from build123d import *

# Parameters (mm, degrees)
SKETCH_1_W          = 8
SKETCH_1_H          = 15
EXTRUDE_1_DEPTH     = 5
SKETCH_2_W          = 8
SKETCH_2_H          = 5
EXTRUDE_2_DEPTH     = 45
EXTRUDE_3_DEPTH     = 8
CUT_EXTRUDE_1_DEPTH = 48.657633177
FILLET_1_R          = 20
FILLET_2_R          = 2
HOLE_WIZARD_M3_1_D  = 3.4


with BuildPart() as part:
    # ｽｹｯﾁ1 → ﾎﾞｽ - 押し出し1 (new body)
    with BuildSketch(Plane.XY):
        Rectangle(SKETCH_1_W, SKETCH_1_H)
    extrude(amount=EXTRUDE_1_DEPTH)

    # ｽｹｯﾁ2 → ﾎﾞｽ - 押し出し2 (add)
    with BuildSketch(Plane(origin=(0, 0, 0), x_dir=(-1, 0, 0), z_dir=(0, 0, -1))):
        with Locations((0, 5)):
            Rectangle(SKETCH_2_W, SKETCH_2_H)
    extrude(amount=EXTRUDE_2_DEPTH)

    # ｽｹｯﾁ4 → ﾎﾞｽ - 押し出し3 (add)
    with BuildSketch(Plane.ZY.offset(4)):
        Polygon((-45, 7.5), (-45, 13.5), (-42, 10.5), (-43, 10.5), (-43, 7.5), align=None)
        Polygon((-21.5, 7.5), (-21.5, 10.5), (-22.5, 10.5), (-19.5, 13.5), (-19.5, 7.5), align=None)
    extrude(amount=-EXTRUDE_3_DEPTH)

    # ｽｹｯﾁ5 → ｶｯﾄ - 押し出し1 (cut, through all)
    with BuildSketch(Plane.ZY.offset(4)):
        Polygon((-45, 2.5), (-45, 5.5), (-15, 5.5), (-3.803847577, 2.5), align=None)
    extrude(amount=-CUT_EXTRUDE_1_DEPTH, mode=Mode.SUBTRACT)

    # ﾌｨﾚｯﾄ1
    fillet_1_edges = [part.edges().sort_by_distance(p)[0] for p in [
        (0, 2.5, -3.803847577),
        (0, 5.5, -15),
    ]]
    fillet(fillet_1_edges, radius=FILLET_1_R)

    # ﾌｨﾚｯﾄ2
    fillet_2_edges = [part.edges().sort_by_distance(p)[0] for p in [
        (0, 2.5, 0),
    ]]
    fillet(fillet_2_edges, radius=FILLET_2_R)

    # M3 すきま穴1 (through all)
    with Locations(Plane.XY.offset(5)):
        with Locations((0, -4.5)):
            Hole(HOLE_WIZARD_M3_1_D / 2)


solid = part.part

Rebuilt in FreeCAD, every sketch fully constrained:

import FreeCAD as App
import Part
import Sketcher
Q = App.Units.Quantity


def edges_at(feature, points):
    """Names of the edges that pass closest to the given points."""
    edges = feature.Shape.Edges
    near = lambda p: min(range(len(edges)), key=lambda i: edges[i].distToShape(Part.Vertex(*p))[0])
    return sorted({f"Edge{near(p) + 1}" for p in points})

doc = App.newDocument("Part")
body = doc.addObject("PartDesign::Body", "Body")

sketch1 = body.newObject("Sketcher::SketchObject", "Sketch")
sketch1.AttachmentSupport = (doc.getObject("XY_Plane"), [""])
sketch1.MapMode = "FlatFace"
sketch1.addGeometry([
    Part.LineSegment(App.Vector(-4, 8, 0), App.Vector(-4, -8, 0)),
    Part.LineSegment(App.Vector(-4, -8, 0), App.Vector(4, -8, 0)),
    Part.LineSegment(App.Vector(4, -8, 0), App.Vector(4, 8, 0)),
    Part.LineSegment(App.Vector(4, 8, 0), App.Vector(-4, 8, 0)),
], False)
sketch1.addConstraint([
    Sketcher.Constraint("Coincident", 0, 2, 1, 1),
    Sketcher.Constraint("Coincident", 1, 2, 2, 1),
    Sketcher.Constraint("Coincident", 2, 2, 3, 1),
    Sketcher.Constraint("Coincident", 3, 2, 0, 1),
    Sketcher.Constraint("Vertical", 0),
    Sketcher.Constraint("Horizontal", 1),
    Sketcher.Constraint("Vertical", 2),
    Sketcher.Constraint("Horizontal", 3),
    Sketcher.Constraint("Symmetric", 0, 2, 2, 2, -1, 1),
    Sketcher.Constraint("DistanceX", 1, 1, 1, 2, Q("8 mm")),
    Sketcher.Constraint("DistanceY", 0, 2, 0, 1, Q("15 mm")),
])
pad1 = body.newObject("PartDesign::Pad", "Pad")
pad1.Profile = sketch1
pad1.Length = 5

sketch2 = body.newObject("Sketcher::SketchObject", "Sketch001")
sketch2.AttachmentSupport = (doc.getObject("XY_Plane"), [""])
sketch2.MapMode = "FlatFace"
sketch2.addGeometry([
    Part.LineSegment(App.Vector(4, 8, 0), App.Vector(4, 2, 0)),
    Part.LineSegment(App.Vector(4, 2, 0), App.Vector(-4, 2, 0)),
    Part.LineSegment(App.Vector(-4, 2, 0), App.Vector(-4, 8, 0)),
    Part.LineSegment(App.Vector(-4, 8, 0), App.Vector(4, 8, 0)),
], False)
sketch2.addConstraint([
    Sketcher.Constraint("Coincident", 0, 2, 1, 1),
    Sketcher.Constraint("Coincident", 1, 2, 2, 1),
    Sketcher.Constraint("Coincident", 2, 2, 3, 1),
    Sketcher.Constraint("Coincident", 3, 2, 0, 1),
    Sketcher.Constraint("Vertical", 0),
    Sketcher.Constraint("Horizontal", 1),
    Sketcher.Constraint("Vertical", 2),
    Sketcher.Constraint("Horizontal", 3),
    Sketcher.Constraint("DistanceX", 1, 2, 1, 1, Q("8 mm")),
    Sketcher.Constraint("DistanceY", 0, 2, 0, 1, Q("5 mm")),
    Sketcher.Constraint("DistanceX", -1, 1, 0, 2, Q("4 mm")),
    Sketcher.Constraint("DistanceY", -1, 1, 0, 2, Q("2.5 mm")),
])
pad2 = body.newObject("PartDesign::Pad", "Pad001")
pad2.Profile = sketch2
pad2.Length = 45
pad2.Reversed = True

sketch3 = body.newObject("Sketcher::SketchObject", "Sketch002")
sketch3.AttachmentSupport = (doc.getObject("YZ_Plane"), [""])
sketch3.MapMode = "FlatFace"
sketch3.AttachmentOffset = App.Placement(App.Vector(0, 0, -4), App.Rotation())
sketch3.addGeometry([
    Part.LineSegment(App.Vector(13.5, -45, 0), App.Vector(7.5, -45, 0)),
    Part.LineSegment(App.Vector(7.5, -45, 0), App.Vector(7.5, -43, 0)),
    Part.LineSegment(App.Vector(7.5, -43, 0), App.Vector(10.5, -43, 0)),
    Part.LineSegment(App.Vector(10.5, -43, 0), App.Vector(10.5, -42, 0)),
    Part.LineSegment(App.Vector(10.5, -42, 0), App.Vector(13.5, -45, 0)),
    Part.LineSegment(App.Vector(10.5, -21.5, 0), App.Vector(7.5, -21.5, 0)),
    Part.LineSegment(App.Vector(7.5, -21.5, 0), App.Vector(7.5, -19.5, 0)),
    Part.LineSegment(App.Vector(7.5, -19.5, 0), App.Vector(13.5, -19.5, 0)),
    Part.LineSegment(App.Vector(13.5, -19.5, 0), App.Vector(10.5, -22.5, 0)),
    Part.LineSegment(App.Vector(10.5, -22.5, 0), App.Vector(10.5, -21.5, 0)),
], False)
sketch3.addConstraint([
    Sketcher.Constraint("Coincident", 0, 2, 1, 1),
    Sketcher.Constraint("Coincident", 1, 2, 2, 1),
    Sketcher.Constraint("Coincident", 2, 2, 3, 1),
    Sketcher.Constraint("Coincident", 3, 2, 4, 1),
    Sketcher.Constraint("Coincident", 4, 2, 0, 1),
    Sketcher.Constraint("Coincident", 5, 2, 6, 1),
    Sketcher.Constraint("Coincident", 6, 2, 7, 1),
    Sketcher.Constraint("Coincident", 7, 2, 8, 1),
    Sketcher.Constraint("Coincident", 8, 2, 9, 1),
    Sketcher.Constraint("Coincident", 9, 2, 5, 1),
    Sketcher.Constraint("Horizontal", 0),
    Sketcher.Constraint("Vertical", 1),
    Sketcher.Constraint("Horizontal", 2),
    Sketcher.Constraint("Vertical", 3),
    Sketcher.Constraint("Horizontal", 5),
    Sketcher.Constraint("Vertical", 6),
    Sketcher.Constraint("Horizontal", 7),
    Sketcher.Constraint("Vertical", 9),
    Sketcher.Constraint("Perpendicular", 4, 8),
    Sketcher.Constraint("Vertical", 1, 2, 5, 2),
    Sketcher.Constraint("Vertical", 4, 2, 7, 2),
    Sketcher.Constraint("Vertical", 3, 2, 8, 2),
    Sketcher.Constraint("Equal", 1, 6),
    Sketcher.Constraint("Equal", 3, 9),
    Sketcher.Constraint("DistanceX", 0, 2, 0, 1, Q("6 mm")),
    Sketcher.Constraint("DistanceX", 2, 1, 2, 2, Q("3 mm")),
    Sketcher.Constraint("DistanceY", 1, 1, 1, 2, Q("2 mm")),
    Sketcher.Constraint("DistanceY", 0, 2, -1, 1, Q("45 mm")),
    Sketcher.Constraint("DistanceX", -1, 1, 0, 2, Q("7.5 mm")),
    Sketcher.Constraint("DistanceY", 5, 2, -1, 1, Q("21.5 mm")),
])
pad3 = body.newObject("PartDesign::Pad", "Pad002")
pad3.Profile = sketch3
pad3.Length = 8

sketch4 = body.newObject("Sketcher::SketchObject", "Sketch003")
sketch4.AttachmentSupport = (doc.getObject("YZ_Plane"), [""])
sketch4.MapMode = "FlatFace"
sketch4.AttachmentOffset = App.Placement(App.Vector(0, 0, -4), App.Rotation())
sketch4.addGeometry([
    Part.LineSegment(App.Vector(5.5, -45, 0), App.Vector(2.5, -45, 0)),
    Part.LineSegment(App.Vector(2.5, -45, 0), App.Vector(2.5, -3.8, 0)),
    Part.LineSegment(App.Vector(2.5, -3.8, 0), App.Vector(5.5, -15, 0)),
    Part.LineSegment(App.Vector(5.5, -15, 0), App.Vector(5.5, -45, 0)),
], False)
sketch4.addConstraint([
    Sketcher.Constraint("Coincident", 0, 2, 1, 1),
    Sketcher.Constraint("Coincident", 1, 2, 2, 1),
    Sketcher.Constraint("Coincident", 2, 2, 3, 1),
    Sketcher.Constraint("Coincident", 3, 2, 0, 1),
    Sketcher.Constraint("Horizontal", 0),
    Sketcher.Constraint("Vertical", 1),
    Sketcher.Constraint("Vertical", 3),
    Sketcher.Constraint("DistanceX", 0, 2, 0, 1, Q("3 mm")),
    Sketcher.Constraint("DistanceY", 3, 2, 3, 1, Q("30 mm")),
    Sketcher.Constraint("Angle", 2, Q("-75 deg")),
    Sketcher.Constraint("DistanceY", 0, 2, -1, 1, Q("45 mm")),
    Sketcher.Constraint("DistanceX", -1, 1, 0, 2, Q("2.5 mm")),
])
pocket1 = body.newObject("PartDesign::Pocket", "Pocket")
pocket1.Profile = sketch4
pocket1.Type = "ThroughAll"
pocket1.Reversed = True
doc.recompute()

fillet = body.newObject("PartDesign::Fillet", "Fillet")
fillet.Base = (pocket1, edges_at(pocket1, [(0, 2.5, -3.804), (0, 5.5, -15)]))
fillet.Radius = 20
doc.recompute()

fillet2 = body.newObject("PartDesign::Fillet", "Fillet001")
fillet2.Base = (fillet, edges_at(fillet, [(0, 2.5, 0)]))
fillet2.Radius = 2

sketch5 = body.newObject("Sketcher::SketchObject", "Sketch004")
sketch5.AttachmentSupport = (doc.getObject("XY_Plane"), [""])
sketch5.MapMode = "FlatFace"
sketch5.AttachmentOffset = App.Placement(App.Vector(0, 0, 5), App.Rotation())
sketch5.addGeometry(Part.Circle(App.Vector(0, -4.5, 0), App.Vector(0, 0, 1), 1.7), False)
sketch5.addConstraint([
    Sketcher.Constraint("PointOnObject", 0, 3, -2),
    Sketcher.Constraint("Diameter", 0, Q("3.4 mm")),
    Sketcher.Constraint("DistanceY", 0, 3, -1, 1, Q("4.5 mm")),
])
doc.recompute()
hole = body.newObject("PartDesign::Hole", "Hole")
hole.Profile = sketch5
hole.ThreadType = "None"
hole.Diameter = 3.4
hole.DepthType = "ThroughAll"

doc.recompute()
